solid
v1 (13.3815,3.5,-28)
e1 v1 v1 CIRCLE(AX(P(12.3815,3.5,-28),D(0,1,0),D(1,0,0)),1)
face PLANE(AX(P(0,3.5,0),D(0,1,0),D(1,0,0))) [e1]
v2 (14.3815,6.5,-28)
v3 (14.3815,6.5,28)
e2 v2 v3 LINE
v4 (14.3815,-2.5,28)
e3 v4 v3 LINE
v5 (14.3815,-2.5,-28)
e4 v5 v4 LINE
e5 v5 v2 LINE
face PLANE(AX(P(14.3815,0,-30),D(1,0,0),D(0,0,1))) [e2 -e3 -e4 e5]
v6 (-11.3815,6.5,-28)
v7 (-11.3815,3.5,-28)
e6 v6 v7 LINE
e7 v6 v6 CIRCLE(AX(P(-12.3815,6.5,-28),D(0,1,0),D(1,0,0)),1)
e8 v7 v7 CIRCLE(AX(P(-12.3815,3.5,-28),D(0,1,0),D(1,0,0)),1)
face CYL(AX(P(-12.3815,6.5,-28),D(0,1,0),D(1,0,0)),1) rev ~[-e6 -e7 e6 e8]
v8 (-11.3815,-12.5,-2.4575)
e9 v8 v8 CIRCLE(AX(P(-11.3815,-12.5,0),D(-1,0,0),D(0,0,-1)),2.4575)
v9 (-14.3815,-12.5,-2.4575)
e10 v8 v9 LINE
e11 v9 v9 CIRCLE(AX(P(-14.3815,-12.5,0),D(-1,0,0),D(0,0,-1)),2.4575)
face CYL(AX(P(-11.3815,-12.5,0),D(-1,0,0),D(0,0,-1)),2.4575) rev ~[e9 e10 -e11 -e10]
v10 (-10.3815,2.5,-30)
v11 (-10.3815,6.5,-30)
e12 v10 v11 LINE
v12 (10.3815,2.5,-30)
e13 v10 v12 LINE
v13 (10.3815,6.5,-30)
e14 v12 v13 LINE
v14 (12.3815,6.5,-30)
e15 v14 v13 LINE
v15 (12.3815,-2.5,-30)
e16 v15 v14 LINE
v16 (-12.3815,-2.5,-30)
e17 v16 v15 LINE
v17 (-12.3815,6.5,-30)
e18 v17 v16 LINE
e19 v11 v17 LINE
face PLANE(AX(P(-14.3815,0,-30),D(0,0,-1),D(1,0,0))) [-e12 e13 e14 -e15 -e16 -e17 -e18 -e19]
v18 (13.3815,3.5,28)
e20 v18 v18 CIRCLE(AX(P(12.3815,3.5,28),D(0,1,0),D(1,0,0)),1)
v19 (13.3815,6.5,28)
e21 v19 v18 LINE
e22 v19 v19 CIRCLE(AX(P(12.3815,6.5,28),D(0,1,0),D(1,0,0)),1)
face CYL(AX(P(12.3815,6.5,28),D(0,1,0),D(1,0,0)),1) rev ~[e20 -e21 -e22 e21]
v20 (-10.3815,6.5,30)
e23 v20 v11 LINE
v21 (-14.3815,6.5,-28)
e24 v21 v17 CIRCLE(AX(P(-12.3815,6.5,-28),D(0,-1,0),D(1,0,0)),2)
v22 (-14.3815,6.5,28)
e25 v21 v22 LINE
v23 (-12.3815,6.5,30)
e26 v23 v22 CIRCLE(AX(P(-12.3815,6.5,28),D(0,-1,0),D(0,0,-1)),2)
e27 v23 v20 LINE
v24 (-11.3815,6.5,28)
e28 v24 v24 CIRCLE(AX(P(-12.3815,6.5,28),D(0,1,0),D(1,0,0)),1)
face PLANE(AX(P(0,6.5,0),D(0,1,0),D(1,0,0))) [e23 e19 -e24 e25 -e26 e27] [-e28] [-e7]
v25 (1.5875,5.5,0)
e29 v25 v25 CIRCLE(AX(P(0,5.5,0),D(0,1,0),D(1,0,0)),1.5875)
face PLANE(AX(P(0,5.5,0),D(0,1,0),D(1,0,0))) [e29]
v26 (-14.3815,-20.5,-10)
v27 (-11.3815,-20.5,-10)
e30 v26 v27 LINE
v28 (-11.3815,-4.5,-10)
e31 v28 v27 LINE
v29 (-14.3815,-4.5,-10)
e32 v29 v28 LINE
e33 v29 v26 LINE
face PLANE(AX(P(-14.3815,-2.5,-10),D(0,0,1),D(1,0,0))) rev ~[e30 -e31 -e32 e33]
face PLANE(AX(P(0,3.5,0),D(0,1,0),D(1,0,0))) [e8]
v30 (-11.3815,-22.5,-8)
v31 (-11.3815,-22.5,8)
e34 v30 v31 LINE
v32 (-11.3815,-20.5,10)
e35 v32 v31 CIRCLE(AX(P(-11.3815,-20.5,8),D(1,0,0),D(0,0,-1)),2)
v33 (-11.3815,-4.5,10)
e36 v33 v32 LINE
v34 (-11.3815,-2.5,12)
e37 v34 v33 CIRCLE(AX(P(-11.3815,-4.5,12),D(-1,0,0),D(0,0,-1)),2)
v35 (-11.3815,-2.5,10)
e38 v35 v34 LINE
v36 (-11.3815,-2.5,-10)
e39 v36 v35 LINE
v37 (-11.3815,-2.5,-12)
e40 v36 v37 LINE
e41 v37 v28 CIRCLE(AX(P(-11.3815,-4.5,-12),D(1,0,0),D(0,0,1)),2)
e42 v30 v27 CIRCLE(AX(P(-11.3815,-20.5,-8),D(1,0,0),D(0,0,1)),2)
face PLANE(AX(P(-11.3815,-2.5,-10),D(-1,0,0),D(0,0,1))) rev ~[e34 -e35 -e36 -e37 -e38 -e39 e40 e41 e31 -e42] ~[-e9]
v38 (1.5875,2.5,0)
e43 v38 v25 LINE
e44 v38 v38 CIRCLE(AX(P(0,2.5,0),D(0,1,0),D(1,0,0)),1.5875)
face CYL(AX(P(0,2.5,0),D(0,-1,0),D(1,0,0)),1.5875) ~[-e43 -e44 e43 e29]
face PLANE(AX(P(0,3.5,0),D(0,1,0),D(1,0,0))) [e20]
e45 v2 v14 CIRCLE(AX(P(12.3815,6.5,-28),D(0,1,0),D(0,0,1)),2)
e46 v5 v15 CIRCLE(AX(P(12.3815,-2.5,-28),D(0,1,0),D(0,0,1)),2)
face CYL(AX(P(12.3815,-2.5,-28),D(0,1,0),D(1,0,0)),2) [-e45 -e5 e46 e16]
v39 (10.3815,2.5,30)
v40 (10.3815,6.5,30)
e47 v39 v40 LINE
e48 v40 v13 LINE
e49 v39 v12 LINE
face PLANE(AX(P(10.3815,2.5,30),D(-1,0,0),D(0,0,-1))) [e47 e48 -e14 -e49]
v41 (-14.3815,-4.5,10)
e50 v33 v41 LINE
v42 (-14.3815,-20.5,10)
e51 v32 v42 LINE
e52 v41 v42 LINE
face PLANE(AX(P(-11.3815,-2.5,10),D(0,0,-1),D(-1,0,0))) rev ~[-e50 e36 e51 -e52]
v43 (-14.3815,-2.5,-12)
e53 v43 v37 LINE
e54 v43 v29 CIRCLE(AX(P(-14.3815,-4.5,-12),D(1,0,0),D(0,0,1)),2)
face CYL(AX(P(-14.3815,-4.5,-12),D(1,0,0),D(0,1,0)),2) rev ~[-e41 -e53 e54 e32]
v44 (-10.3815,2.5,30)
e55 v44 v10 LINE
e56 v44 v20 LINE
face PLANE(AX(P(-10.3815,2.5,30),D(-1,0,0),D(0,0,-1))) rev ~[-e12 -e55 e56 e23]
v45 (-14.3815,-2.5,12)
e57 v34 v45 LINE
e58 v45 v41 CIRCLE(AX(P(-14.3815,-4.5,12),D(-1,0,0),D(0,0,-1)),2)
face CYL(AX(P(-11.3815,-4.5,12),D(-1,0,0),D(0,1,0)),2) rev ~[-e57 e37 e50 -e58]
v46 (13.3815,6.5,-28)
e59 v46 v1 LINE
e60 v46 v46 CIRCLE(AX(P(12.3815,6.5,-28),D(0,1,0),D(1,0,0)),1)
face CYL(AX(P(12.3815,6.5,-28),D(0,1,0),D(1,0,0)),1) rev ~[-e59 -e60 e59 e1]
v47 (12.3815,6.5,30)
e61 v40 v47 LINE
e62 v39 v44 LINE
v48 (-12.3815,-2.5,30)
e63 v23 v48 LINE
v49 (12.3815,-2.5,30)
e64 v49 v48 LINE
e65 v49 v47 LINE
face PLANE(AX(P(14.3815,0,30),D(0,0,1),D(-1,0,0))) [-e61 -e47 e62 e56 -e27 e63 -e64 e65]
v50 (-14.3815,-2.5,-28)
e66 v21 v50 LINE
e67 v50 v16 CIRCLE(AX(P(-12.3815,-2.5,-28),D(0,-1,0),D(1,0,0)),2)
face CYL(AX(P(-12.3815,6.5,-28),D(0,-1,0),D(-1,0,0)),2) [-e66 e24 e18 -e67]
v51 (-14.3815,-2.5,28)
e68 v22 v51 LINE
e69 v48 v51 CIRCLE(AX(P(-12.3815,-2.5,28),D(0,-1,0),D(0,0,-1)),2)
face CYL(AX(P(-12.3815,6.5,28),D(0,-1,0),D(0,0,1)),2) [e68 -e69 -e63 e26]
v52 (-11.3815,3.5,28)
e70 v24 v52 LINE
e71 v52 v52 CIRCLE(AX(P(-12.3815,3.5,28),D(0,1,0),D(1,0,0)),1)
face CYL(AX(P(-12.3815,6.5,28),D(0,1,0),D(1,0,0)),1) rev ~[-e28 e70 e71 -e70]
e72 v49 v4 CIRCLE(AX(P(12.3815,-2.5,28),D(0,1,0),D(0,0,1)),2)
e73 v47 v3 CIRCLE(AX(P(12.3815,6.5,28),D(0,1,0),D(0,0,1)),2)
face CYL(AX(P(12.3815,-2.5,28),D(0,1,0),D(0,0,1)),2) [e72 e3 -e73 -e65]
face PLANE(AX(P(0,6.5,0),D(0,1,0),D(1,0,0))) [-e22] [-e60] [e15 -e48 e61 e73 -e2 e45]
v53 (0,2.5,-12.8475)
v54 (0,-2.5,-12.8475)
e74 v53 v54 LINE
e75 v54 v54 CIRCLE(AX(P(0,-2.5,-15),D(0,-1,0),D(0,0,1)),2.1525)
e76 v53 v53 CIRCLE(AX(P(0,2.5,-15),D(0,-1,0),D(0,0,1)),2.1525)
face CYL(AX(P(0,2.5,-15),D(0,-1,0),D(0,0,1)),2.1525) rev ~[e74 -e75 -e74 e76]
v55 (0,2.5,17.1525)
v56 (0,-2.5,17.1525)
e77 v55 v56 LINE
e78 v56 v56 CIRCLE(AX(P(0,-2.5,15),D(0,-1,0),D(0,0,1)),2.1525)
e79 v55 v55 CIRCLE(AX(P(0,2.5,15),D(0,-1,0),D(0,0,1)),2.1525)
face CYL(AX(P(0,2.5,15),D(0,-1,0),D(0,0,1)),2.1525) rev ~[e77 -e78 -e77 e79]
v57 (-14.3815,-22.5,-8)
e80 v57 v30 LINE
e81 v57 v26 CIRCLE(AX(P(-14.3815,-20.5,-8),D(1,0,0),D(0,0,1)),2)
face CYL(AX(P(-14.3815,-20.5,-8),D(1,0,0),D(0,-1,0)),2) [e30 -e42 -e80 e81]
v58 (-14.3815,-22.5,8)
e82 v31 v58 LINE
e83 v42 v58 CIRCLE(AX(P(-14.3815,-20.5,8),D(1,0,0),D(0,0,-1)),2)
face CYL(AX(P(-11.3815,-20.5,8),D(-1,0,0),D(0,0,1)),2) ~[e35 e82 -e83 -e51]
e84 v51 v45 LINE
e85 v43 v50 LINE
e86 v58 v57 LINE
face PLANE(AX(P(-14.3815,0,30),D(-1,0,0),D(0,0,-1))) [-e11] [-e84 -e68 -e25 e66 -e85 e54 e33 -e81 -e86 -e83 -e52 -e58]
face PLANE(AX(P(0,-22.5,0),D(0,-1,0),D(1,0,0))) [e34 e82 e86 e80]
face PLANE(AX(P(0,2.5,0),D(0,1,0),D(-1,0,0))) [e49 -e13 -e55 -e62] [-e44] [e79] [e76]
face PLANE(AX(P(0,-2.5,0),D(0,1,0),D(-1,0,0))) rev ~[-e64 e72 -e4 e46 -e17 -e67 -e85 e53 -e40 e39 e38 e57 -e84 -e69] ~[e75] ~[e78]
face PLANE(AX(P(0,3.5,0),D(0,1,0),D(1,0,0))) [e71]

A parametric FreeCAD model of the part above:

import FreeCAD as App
import Part
import Sketcher


def edges_at(feature, points):
    """Names of the edges that pass closest to the given points."""
    edges = feature.Shape.Edges
    near = lambda p: min(range(len(edges)), key=lambda i: edges[i].distToShape(Part.Vertex(*p))[0])
    return sorted({f"Edge{near(p) + 1}" for p in points})


def add_polygon(sketch, points):
    """Adds a closed chain of lines whose ends are joined by coincident constraints."""
    first, n = sketch.GeometryCount, len(points)
    for a, b in zip(points, points[1:] + points[:1]):
        sketch.addGeometry(Part.LineSegment(App.Vector(*a, 0), App.Vector(*b, 0)), False)
    for i in range(n):
        sketch.addConstraint(Sketcher.Constraint("Coincident", first + i, 2, first + (i + 1) % n, 1))

doc = App.newDocument("Part")
body = doc.addObject("PartDesign::Body", "Body")

# Sketch on XZ plane
sketch1 = doc.addObject("Sketcher::SketchObject", "Sketch")
body.addObject(sketch1)
sketch1.AttachmentSupport = (doc.XZ_Plane, [""])
sketch1.MapMode = "FlatFace"
add_polygon(sketch1, [(-14, 30), (14, 30), (14, -30), (-14, -30)])  # lines 0-3
sketch1.addConstraint(Sketcher.Constraint("Horizontal", 0))
sketch1.addConstraint(Sketcher.Constraint("Vertical", 1))
sketch1.addConstraint(Sketcher.Constraint("Horizontal", 2))
sketch1.addConstraint(Sketcher.Constraint("Vertical", 3))
sketch1.addConstraint(Sketcher.Constraint("Symmetric", 0, 2, 2, 2, -1, 1))
sketch1.addConstraint(Sketcher.Constraint("DistanceY", 1, 2, 1, 1, 60.0))
sketch1.addConstraint(Sketcher.Constraint("DistanceX", 0, 1, 0, 2, 28.763))
pad1 = doc.addObject("PartDesign::Pad", "Pad")
body.addObject(pad1)
pad1.Profile = sketch1
pad1.Length = 5
pad1.Midplane = True

# Sketch on XZ plane
sketch2 = doc.addObject("Sketcher::SketchObject", "Sketch001")
body.addObject(sketch2)
sketch2.AttachmentSupport = (doc.XZ_Plane, [""])
sketch2.MapMode = "FlatFace"
sketch2.AttachmentOffset = App.Placement(App.Vector(0, 0, -2.5), App.Rotation())
add_polygon(sketch2, [(-14.4, -30), (-14.4, 30), (-10.4, 30), (-10.4, -30)])  # lines 0-3
add_polygon(sketch2, [(10.4, -30), (10.4, 30), (14.4, 30), (14.4, -30)])  # lines 4-7
sketch2.addConstraint(Sketcher.Constraint("Vertical", 0))
sketch2.addConstraint(Sketcher.Constraint("Horizontal", 1))
sketch2.addConstraint(Sketcher.Constraint("Vertical", 2))
sketch2.addConstraint(Sketcher.Constraint("Horizontal", 3))
sketch2.addConstraint(Sketcher.Constraint("Vertical", 4))
sketch2.addConstraint(Sketcher.Constraint("Horizontal", 5))
sketch2.addConstraint(Sketcher.Constraint("Vertical", 6))
sketch2.addConstraint(Sketcher.Constraint("Horizontal", 7))
sketch2.addConstraint(Sketcher.Constraint("Symmetric", 2, 2, 4, 2, -1, 1))
sketch2.addConstraint(Sketcher.Constraint("Symmetric", 0, 2, 6, 2, -1, 1))
sketch2.addConstraint(Sketcher.Constraint("Horizontal", 1, 2, 4, 2))
sketch2.addConstraint(Sketcher.Constraint("DistanceX", 1, 1, 1, 2, 4.0))
sketch2.addConstraint(Sketcher.Constraint("DistanceY", 0, 1, 0, 2, 60.0))
sketch2.addConstraint(Sketcher.Constraint("DistanceX", 1, 2, 4, 2, 20.763))
pad2 = doc.addObject("PartDesign::Pad", "Pad001")
body.addObject(pad2)
pad2.Profile = sketch2
pad2.Length = 4
pad2.Reversed = True

# Sketch on XZ plane
sketch3 = doc.addObject("Sketcher::SketchObject", "Sketch002")
body.addObject(sketch3)
sketch3.AttachmentSupport = (doc.XZ_Plane, [""])
sketch3.MapMode = "FlatFace"
sketch3.AttachmentOffset = App.Placement(App.Vector(0, 0, -2.5), App.Rotation())
sketch3.addGeometry(Part.Circle(App.Vector(0, 0, 0), App.Vector(0, 0, 1), 1.6), False)
sketch3.addConstraint(Sketcher.Constraint("Coincident", 0, 3, -1, 1))
sketch3.addConstraint(Sketcher.Constraint("Diameter", 0, 3.175))
pad3 = doc.addObject("PartDesign::Pad", "Pad002")
body.addObject(pad3)
pad3.Profile = sketch3
pad3.Length = 3
pad3.Reversed = True

# Sketch on XZ plane
sketch4 = doc.addObject("Sketcher::SketchObject", "Sketch003")
body.addObject(sketch4)
sketch4.AttachmentSupport = (doc.XZ_Plane, [""])
sketch4.MapMode = "FlatFace"
sketch4.AttachmentOffset = App.Placement(App.Vector(0, 0, -2.5), App.Rotation())
sketch4.addGeometry(Part.Circle(App.Vector(0, 15, 0), App.Vector(0, 0, 1), 2.2), False)
sketch4.addGeometry(Part.Circle(App.Vector(0, -15, 0), App.Vector(0, 0, 1), 2.2), False)
sketch4.addConstraint(Sketcher.Constraint("Equal", 0, 1))
sketch4.addConstraint(Sketcher.Constraint("Symmetric", 0, 3, 1, 3, -1, 1))
sketch4.addConstraint(Sketcher.Constraint("PointOnObject", 0, 3, -2))
sketch4.addConstraint(Sketcher.Constraint("Diameter", 0, 4.305))
sketch4.addConstraint(Sketcher.Constraint("DistanceY", -1, 1, 0, 3, 15.0))
doc.recompute()
hole = doc.addObject("PartDesign::Hole", "Hole")
body.addObject(hole)
hole.Profile = sketch4
hole.ThreadType = "None"
hole.Diameter = 4.305
hole.DepthType = "ThroughAll"
hole.Reversed = True

# Sketch on XZ plane
sketch5 = doc.addObject("Sketcher::SketchObject", "Sketch004")
body.addObject(sketch5)
sketch5.AttachmentSupport = (doc.XZ_Plane, [""])
sketch5.MapMode = "FlatFace"
sketch5.AttachmentOffset = App.Placement(App.Vector(0, 0, -6.5), App.Rotation())
sketch5.addGeometry(Part.Circle(App.Vector(-12.4, -28, 0), App.Vector(0, 0, 1), 1), False)
sketch5.addGeometry(Part.Circle(App.Vector(-12.4, 28, 0), App.Vector(0, 0, 1), 1), False)
sketch5.addGeometry(Part.Circle(App.Vector(12.4, 28, 0), App.Vector(0, 0, 1), 1), False)
sketch5.addGeometry(Part.Circle(App.Vector(12.4, -28, 0), App.Vector(0, 0, 1), 1), False)
sketch5.addConstraint(Sketcher.Constraint("Equal", 0, 1))
sketch5.addConstraint(Sketcher.Constraint("Equal", 1, 2))
sketch5.addConstraint(Sketcher.Constraint("Equal", 2, 3))
sketch5.addConstraint(Sketcher.Constraint("Symmetric", 0, 3, 2, 3, -1, 1))
sketch5.addConstraint(Sketcher.Constraint("Symmetric", 1, 3, 3, 3, -1, 1))
sketch5.addConstraint(Sketcher.Constraint("Symmetric", 1, 3, 2, 3, -2))
sketch5.addConstraint(Sketcher.Constraint("Diameter", 0, 2.0))
sketch5.addConstraint(Sketcher.Constraint("DistanceY", 0, 3, -1, 1, 28.0))
sketch5.addConstraint(Sketcher.Constraint("DistanceX", 1, 3, 2, 3, 24.763))
pocket1 = doc.addObject("PartDesign::Pocket", "Pocket")
body.addObject(pocket1)
pocket1.Profile = sketch5
pocket1.Length = 3
pocket1.Reversed = True

# Sketch on XZ plane
sketch6 = doc.addObject("Sketcher::SketchObject", "Sketch005")
body.addObject(sketch6)
sketch6.AttachmentSupport = (doc.XZ_Plane, [""])
sketch6.MapMode = "FlatFace"
sketch6.AttachmentOffset = App.Placement(App.Vector(0, 0, 2.5), App.Rotation())
add_polygon(sketch6, [(-14.4, 10), (-14.4, -10), (-11.4, -10), (-11.4, 10)])  # lines 0-3
sketch6.addConstraint(Sketcher.Constraint("Vertical", 0))
sketch6.addConstraint(Sketcher.Constraint("Horizontal", 1))
sketch6.addConstraint(Sketcher.Constraint("Vertical", 2))
sketch6.addConstraint(Sketcher.Constraint("Horizontal", 3))
sketch6.addConstraint(Sketcher.Constraint("DistanceX", 1, 1, 1, 2, 3.0))
sketch6.addConstraint(Sketcher.Constraint("DistanceY", 0, 2, 0, 1, 20.0))
sketch6.addConstraint(Sketcher.Constraint("DistanceY", 0, 2, -1, 1, 10.0))
sketch6.addConstraint(Sketcher.Constraint("DistanceX", 0, 2, -1, 1, 14.3815))
pad4 = doc.addObject("PartDesign::Pad", "Pad003")
body.addObject(pad4)
pad4.Profile = sketch6
pad4.Length = 20

# Sketch on YZ plane
sketch7 = doc.addObject("Sketcher::SketchObject", "Sketch006")
body.addObject(sketch7)
sketch7.AttachmentSupport = (doc.YZ_Plane, [""])
sketch7.MapMode = "FlatFace"
sketch7.AttachmentOffset = App.Placement(App.Vector(0, 0, -11.3815), App.Rotation())
sketch7.addGeometry(Part.Circle(App.Vector(-12.5, 0, 0), App.Vector(0, 0, 1), 2.5), False)
sketch7.addConstraint(Sketcher.Constraint("PointOnObject", 0, 3, -1))
sketch7.addConstraint(Sketcher.Constraint("Diameter", 0, 4.915))
sketch7.addConstraint(Sketcher.Constraint("DistanceX", 0, 3, -1, 1, 12.5))
doc.recompute()
hole2 = doc.addObject("PartDesign::Hole", "Hole001")
body.addObject(hole2)
hole2.Profile = sketch7
hole2.ThreadType = "None"
hole2.Diameter = 4.915
hole2.DepthType = "ThroughAll"
doc.recompute()

fillet = doc.addObject("PartDesign::Fillet", "Fillet")
body.addObject(fillet)
fillet.Base = (hole2, edges_at(hole2, [
    (14.382, 2, 30),
    (-14.382, 2, 30),
    (-14.382, 2, -30),
    (14.382, 2, -30),
    (-12.882, -2.5, -10),
    (-12.882, -2.5, 10),
    (-12.882, -22.5, 10),
    (-12.882, -22.5, -10),
]))
fillet.Radius = 2

doc.recompute()
